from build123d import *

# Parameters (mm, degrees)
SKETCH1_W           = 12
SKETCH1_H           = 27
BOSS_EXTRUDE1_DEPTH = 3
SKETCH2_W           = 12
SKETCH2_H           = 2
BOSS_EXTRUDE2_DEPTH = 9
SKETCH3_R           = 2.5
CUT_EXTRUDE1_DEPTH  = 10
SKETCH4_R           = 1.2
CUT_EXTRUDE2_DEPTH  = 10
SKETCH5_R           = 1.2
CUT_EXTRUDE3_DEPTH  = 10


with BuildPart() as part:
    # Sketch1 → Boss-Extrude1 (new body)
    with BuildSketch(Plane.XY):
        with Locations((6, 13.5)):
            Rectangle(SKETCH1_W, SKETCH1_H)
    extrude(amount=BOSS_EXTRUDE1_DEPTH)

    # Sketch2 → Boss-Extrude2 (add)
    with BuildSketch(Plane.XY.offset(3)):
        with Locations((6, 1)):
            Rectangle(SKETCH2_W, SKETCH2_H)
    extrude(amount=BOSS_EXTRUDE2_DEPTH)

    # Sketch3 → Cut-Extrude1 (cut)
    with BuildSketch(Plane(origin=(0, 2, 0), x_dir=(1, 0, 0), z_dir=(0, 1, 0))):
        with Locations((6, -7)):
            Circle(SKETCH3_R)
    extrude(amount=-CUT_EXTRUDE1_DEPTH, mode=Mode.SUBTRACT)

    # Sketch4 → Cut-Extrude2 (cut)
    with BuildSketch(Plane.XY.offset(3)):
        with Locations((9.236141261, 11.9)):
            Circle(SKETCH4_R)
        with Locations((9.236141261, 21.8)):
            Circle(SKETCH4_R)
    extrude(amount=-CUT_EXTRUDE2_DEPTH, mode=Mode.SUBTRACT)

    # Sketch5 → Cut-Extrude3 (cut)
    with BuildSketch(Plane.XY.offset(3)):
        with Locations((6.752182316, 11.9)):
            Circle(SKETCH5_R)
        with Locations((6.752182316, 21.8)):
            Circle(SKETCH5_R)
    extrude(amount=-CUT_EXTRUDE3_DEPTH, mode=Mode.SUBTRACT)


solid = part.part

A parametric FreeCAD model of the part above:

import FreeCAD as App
import Part
import Sketcher

V = App.Vector
Q = App.Units.Quantity


def add_polygon(sketch, points):
    """Adds a closed chain of lines whose ends are joined by coincident constraints."""
    first, n = sketch.GeometryCount, len(points)
    for a, b in zip(points, points[1:] + points[:1]):
        sketch.addGeometry(Part.LineSegment(App.Vector(*a, 0), App.Vector(*b, 0)), False)
    for i in range(n):
        sketch.addConstraint(Sketcher.Constraint("Coincident", first + i, 2, first + (i + 1) % n, 1))

doc = App.newDocument("Part")
body = doc.addObject("PartDesign::Body", "Body")

# Sketch on XY plane
sketch1 = doc.addObject("Sketcher::SketchObject", "Sketch")
body.addObject(sketch1)
sketch1.AttachmentSupport = (doc.XY_Plane, [""])
sketch1.MapMode = "FlatFace"
add_polygon(sketch1, [(0, 27), (0, 0), (12, 0), (12, 27)])  # lines 0-3
sketch1.addConstraint([
    Sketcher.Constraint("Vertical", 0),
    Sketcher.Constraint("Horizontal", 1),
    Sketcher.Constraint("Vertical", 2),
    Sketcher.Constraint("Horizontal", 3),
    Sketcher.Constraint("Coincident", 0, 2, -1, 1),
    Sketcher.Constraint("DistanceX", 1, 1, 1, 2, Q("12 mm")),
    Sketcher.Constraint("DistanceY", 0, 2, 0, 1, Q("27 mm")),
])
pad1 = doc.addObject("PartDesign::Pad", "Pad")
body.addObject(pad1)
pad1.Profile = sketch1
pad1.Length = 3

# Sketch on XY plane
sketch2 = doc.addObject("Sketcher::SketchObject", "Sketch001")
body.addObject(sketch2)
sketch2.AttachmentSupport = (doc.XY_Plane, [""])
sketch2.MapMode = "FlatFace"
sketch2.AttachmentOffset = App.Placement(V(0, 0, 3), App.Rotation())
add_polygon(sketch2, [(0, 2), (0, 0), (12, 0), (12, 2)])  # lines 0-3
sketch2.addConstraint([
    Sketcher.Constraint("Vertical", 0),
    Sketcher.Constraint("Horizontal", 1),
    Sketcher.Constraint("Vertical", 2),
    Sketcher.Constraint("Horizontal", 3),
    Sketcher.Constraint("Coincident", 0, 2, -1, 1),
    Sketcher.Constraint("DistanceX", 1, 1, 1, 2, Q("12 mm")),
    Sketcher.Constraint("DistanceY", 0, 2, 0, 1, Q("2 mm")),
])
pad2 = doc.addObject("PartDesign::Pad", "Pad001")
body.addObject(pad2)
pad2.Profile = sketch2
pad2.Length = 9

# Sketch on XZ plane
sketch3 = doc.addObject("Sketcher::SketchObject", "Sketch002")
body.addObject(sketch3)
sketch3.AttachmentSupport = (doc.XZ_Plane, [""])
sketch3.MapMode = "FlatFace"
sketch3.AttachmentOffset = App.Placement(V(0, 0, -2), App.Rotation())
sketch3.addGeometry(Part.Circle(V(6, 7, 0), V(0, 0, 1), 2.5), False)
sketch3.addConstraint([
    Sketcher.Constraint("Diameter", 0, Q("5 mm")),
    Sketcher.Constraint("DistanceX", -1, 1, 0, 3, Q("6 mm")),
    Sketcher.Constraint("DistanceY", -1, 1, 0, 3, Q("7 mm")),
])
pocket1 = doc.addObject("PartDesign::Pocket", "Pocket")
body.addObject(pocket1)
pocket1.Profile = sketch3
pocket1.Length = 10
pocket1.Reversed = True

# Sketch on XY plane
sketch4 = doc.addObject("Sketcher::SketchObject", "Sketch003")
body.addObject(sketch4)
sketch4.AttachmentSupport = (doc.XY_Plane, [""])
sketch4.MapMode = "FlatFace"
sketch4.AttachmentOffset = App.Placement(V(0, 0, 3), App.Rotation())
sketch4.addGeometry([
    Part.Circle(V(9.2, 11.9, 0), V(0, 0, 1), 1.2),
    Part.Circle(V(9.2, 21.8, 0), V(0, 0, 1), 1.2),
], False)
sketch4.addConstraint([
    Sketcher.Constraint("Equal", 0, 1),
    Sketcher.Constraint("Vertical", 0, 3, 1, 3),
    Sketcher.Constraint("Diameter", 0, Q("2.4 mm")),
    Sketcher.Constraint("DistanceY", -1, 1, 0, 3, Q("11.9 mm")),
    Sketcher.Constraint("DistanceY", -1, 1, 1, 3, Q("21.8 mm")),
    Sketcher.Constraint("DistanceX", -1, 1, 0, 3, Q("9.236141 mm")),
])
pocket2 = doc.addObject("PartDesign::Pocket", "Pocket001")
body.addObject(pocket2)
pocket2.Profile = sketch4
pocket2.Length = 10

# Sketch on XY plane
sketch5 = doc.addObject("Sketcher::SketchObject", "Sketch004")
body.addObject(sketch5)
sketch5.AttachmentSupport = (doc.XY_Plane, [""])
sketch5.MapMode = "FlatFace"
sketch5.AttachmentOffset = App.Placement(V(0, 0, 3), App.Rotation())
sketch5.addGeometry([
    Part.Circle(V(6.8, 11.9, 0), V(0, 0, 1), 1.2),
    Part.Circle(V(6.8, 21.8, 0), V(0, 0, 1), 1.2),
], False)
sketch5.addConstraint([
    Sketcher.Constraint("Equal", 0, 1),
    Sketcher.Constraint("Vertical", 0, 3, 1, 3),
    Sketcher.Constraint("Diameter", 0, Q("2.4 mm")),
    Sketcher.Constraint("DistanceY", -1, 1, 0, 3, Q("11.9 mm")),
    Sketcher.Constraint("DistanceY", -1, 1, 1, 3, Q("21.8 mm")),
    Sketcher.Constraint("DistanceX", -1, 1, 0, 3, Q("6.752182 mm")),
])
pocket3 = doc.addObject("PartDesign::Pocket", "Pocket002")
body.addObject(pocket3)
pocket3.Profile = sketch5
pocket3.Length = 10

doc.recompute()
